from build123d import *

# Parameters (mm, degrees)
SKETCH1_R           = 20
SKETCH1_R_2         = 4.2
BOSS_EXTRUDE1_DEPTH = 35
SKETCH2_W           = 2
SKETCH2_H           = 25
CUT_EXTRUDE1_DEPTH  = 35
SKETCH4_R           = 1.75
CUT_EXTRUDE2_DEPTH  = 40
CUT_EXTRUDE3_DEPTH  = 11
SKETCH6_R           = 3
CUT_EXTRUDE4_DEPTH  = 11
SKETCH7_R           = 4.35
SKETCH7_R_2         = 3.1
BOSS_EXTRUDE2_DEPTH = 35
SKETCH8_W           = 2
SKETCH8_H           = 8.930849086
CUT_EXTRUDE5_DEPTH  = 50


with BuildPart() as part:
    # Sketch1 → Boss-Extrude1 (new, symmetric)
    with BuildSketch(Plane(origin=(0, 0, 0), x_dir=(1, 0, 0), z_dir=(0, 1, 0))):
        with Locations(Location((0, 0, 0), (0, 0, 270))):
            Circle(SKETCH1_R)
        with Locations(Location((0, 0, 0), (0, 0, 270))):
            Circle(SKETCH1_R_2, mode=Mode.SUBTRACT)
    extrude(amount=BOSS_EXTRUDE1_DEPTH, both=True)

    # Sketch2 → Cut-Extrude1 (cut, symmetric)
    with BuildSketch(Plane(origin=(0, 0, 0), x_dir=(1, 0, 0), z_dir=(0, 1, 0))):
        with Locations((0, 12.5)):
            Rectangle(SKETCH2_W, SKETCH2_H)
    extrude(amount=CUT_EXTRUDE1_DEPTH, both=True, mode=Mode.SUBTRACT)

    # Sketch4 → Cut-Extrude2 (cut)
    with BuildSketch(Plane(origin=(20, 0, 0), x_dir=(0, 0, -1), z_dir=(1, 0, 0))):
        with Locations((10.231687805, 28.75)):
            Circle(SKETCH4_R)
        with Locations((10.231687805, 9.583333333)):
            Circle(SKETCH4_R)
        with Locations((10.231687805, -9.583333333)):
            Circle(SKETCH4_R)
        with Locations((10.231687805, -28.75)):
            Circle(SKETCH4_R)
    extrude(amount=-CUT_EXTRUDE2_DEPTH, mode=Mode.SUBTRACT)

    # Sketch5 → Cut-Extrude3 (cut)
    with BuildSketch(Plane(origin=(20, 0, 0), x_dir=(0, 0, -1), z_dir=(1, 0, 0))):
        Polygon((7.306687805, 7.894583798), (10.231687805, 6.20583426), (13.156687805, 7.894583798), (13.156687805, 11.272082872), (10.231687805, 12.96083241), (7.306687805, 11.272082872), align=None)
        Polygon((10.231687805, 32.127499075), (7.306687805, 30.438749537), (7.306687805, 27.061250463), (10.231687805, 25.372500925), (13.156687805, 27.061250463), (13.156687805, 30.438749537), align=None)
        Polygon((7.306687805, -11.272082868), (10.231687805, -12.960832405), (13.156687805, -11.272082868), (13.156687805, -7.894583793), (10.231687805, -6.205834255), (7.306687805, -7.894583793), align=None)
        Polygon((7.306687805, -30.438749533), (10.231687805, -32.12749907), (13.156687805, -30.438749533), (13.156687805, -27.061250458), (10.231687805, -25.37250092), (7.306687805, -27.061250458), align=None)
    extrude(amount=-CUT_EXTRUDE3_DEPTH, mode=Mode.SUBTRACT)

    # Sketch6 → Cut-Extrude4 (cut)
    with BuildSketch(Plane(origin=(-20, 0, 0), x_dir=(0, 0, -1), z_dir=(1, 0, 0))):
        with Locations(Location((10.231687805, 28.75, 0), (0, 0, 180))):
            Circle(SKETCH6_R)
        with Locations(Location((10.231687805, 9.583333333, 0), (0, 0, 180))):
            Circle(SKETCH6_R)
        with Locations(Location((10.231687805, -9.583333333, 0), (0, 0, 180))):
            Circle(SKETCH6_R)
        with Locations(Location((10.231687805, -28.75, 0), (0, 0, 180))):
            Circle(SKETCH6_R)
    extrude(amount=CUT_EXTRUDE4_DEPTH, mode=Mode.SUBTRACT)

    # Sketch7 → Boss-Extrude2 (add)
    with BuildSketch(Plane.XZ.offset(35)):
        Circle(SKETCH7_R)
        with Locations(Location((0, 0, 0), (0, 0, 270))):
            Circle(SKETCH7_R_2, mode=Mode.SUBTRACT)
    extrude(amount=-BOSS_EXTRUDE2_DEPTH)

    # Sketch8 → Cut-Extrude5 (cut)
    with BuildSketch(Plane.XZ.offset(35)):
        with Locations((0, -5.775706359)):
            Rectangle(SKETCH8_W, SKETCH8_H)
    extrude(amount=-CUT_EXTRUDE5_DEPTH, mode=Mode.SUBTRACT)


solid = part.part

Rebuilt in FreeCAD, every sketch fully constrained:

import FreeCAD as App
import Part
import Sketcher
from FreeCAD import Vector
Q = App.Units.Quantity


def add_polygon(sketch, points):
    """Adds a closed chain of lines whose ends are joined by coincident constraints."""
    first, n = sketch.GeometryCount, len(points)
    for a, b in zip(points, points[1:] + points[:1]):
        sketch.addGeometry(Part.LineSegment(App.Vector(*a, 0), App.Vector(*b, 0)), False)
    for i in range(n):
        sketch.addConstraint(Sketcher.Constraint("Coincident", first + i, 2, first + (i + 1) % n, 1))

doc = App.newDocument("Part")
params = doc.addObject("Spreadsheet::Sheet", "Params")
for row, (alias, value) in enumerate([
    ("sketch1_diameter", "40 mm"),
    ("sketch1_diameter2", "8.4 mm"),
    ("pad1_length", "70 mm"),
    ("sketch2_width", "2 mm"),
    ("sketch2_height", "25 mm"),
    ("pocket1_length", "70 mm"),
    ("sketch3_diameter", "3.5 mm"),
    ("pocket2_length", "40 mm"),
    ("pocket3_length", "11 mm"),
    ("sketch5_diameter", "6 mm"),
    ("pocket4_length", "11 mm"),
    ("sketch6_diameter", "8.7 mm"),
    ("sketch6_diameter2", "6.2 mm"),
    ("pad2_length", "35 mm"),
    ("sketch7_width", "2 mm"),
    ("pocket5_length", "50 mm"),
], start=1):
    params.set(f"A{row}", alias)
    params.set(f"B{row}", "=" + value)
    params.setAlias(f"B{row}", alias)

body = doc.addObject("PartDesign::Body", "Body")

# Sketch on XZ plane
sketch1 = body.newObject("Sketcher::SketchObject", "Sketch")
sketch1.AttachmentSupport = (doc.getObject("XZ_Plane"), [""])
sketch1.MapMode = "FlatFace"
sketch1.addGeometry(Part.Circle(Vector(0, 0, 0), Vector(0, 0, 1), 20), False)
sketch1.addGeometry(Part.Circle(Vector(0, 0, 0), Vector(0, 0, 1), 4.2), False)
sketch1.addConstraint(Sketcher.Constraint("Coincident", 0, 3, -1, 1))
sketch1.addConstraint(Sketcher.Constraint("Coincident", 1, 3, -1, 1))
sketch1.addConstraint(Sketcher.Constraint("Diameter", 0, Q("40 mm")))
sketch1.addConstraint(Sketcher.Constraint("Diameter", 1, Q("8.4 mm")))
sketch1.setExpression("Constraints[2]", "Params.sketch1_diameter")
sketch1.setExpression("Constraints[3]", "Params.sketch1_diameter2")
pad1 = body.newObject("PartDesign::Pad", "Pad")
pad1.Profile = sketch1
pad1.setExpression("Length", "Params.pad1_length")
pad1.Midplane = True

# Sketch on XZ plane
sketch2 = body.newObject("Sketcher::SketchObject", "Sketch001")
sketch2.AttachmentSupport = (doc.getObject("XZ_Plane"), [""])
sketch2.MapMode = "FlatFace"
add_polygon(sketch2, [(-1, -25), (-1, 0), (1, 0), (1, -25)])  # lines 0-3
sketch2.addConstraint(Sketcher.Constraint("Vertical", 0))
sketch2.addConstraint(Sketcher.Constraint("Horizontal", 1))
sketch2.addConstraint(Sketcher.Constraint("Vertical", 2))
sketch2.addConstraint(Sketcher.Constraint("Horizontal", 3))
sketch2.addConstraint(Sketcher.Constraint("Symmetric", 0, 2, 1, 2, -1, 1))
sketch2.addConstraint(Sketcher.Constraint("DistanceX", 1, 1, 1, 2, Q("2 mm")))
sketch2.addConstraint(Sketcher.Constraint("DistanceY", 0, 1, 0, 2, Q("25 mm")))
sketch2.setExpression("Constraints[9]", "Params.sketch2_width")
sketch2.setExpression("Constraints[10]", "Params.sketch2_height")
pocket1 = body.newObject("PartDesign::Pocket", "Pocket")
pocket1.Profile = sketch2
pocket1.setExpression("Length", "Params.pocket1_length")
pocket1.Midplane = True

# Sketch on YZ plane
sketch3 = body.newObject("Sketcher::SketchObject", "Sketch002")
sketch3.AttachmentSupport = (doc.getObject("YZ_Plane"), [""])
sketch3.MapMode = "FlatFace"
sketch3.AttachmentOffset = App.Placement(Vector(0, 0, 20), App.Rotation())
sketch3.addGeometry(Part.Circle(Vector(28.8, -10.2, 0), Vector(0, 0, 1), 1.8), False)
sketch3.addGeometry(Part.Circle(Vector(9.6, -10.2, 0), Vector(0, 0, 1), 1.8), False)
sketch3.addGeometry(Part.Circle(Vector(-9.6, -10.2, 0), Vector(0, 0, 1), 1.8), False)
sketch3.addGeometry(Part.Circle(Vector(-28.8, -10.2, 0), Vector(0, 0, 1), 1.8), False)
sketch3.addConstraint(Sketcher.Constraint("Equal", 0, 1))
sketch3.addConstraint(Sketcher.Constraint("Equal", 1, 2))
sketch3.addConstraint(Sketcher.Constraint("Equal", 2, 3))
sketch3.addConstraint(Sketcher.Constraint("Symmetric", 1, 3, 2, 3, -2))
sketch3.addConstraint(Sketcher.Constraint("Symmetric", 0, 3, 3, 3, -2))
sketch3.addConstraint(Sketcher.Constraint("Horizontal", 0, 3, 1, 3))
sketch3.addConstraint(Sketcher.Constraint("Diameter", 0, Q("3.5 mm")))
sketch3.addConstraint(Sketcher.Constraint("DistanceX", 3, 3, 0, 3, Q("57.5 mm")))
sketch3.addConstraint(Sketcher.Constraint("DistanceY", 0, 3, -1, 1, Q("10.231688 mm")))
sketch3.addConstraint(Sketcher.Constraint("DistanceX", -1, 1, 1, 3, Q("9.583333 mm")))
sketch3.setExpression("Constraints[6]", "Params.sketch3_diameter")
pocket2 = body.newObject("PartDesign::Pocket", "Pocket001")
pocket2.Profile = sketch3
pocket2.setExpression("Length", "Params.pocket2_length")

# Sketch on YZ plane
sketch4 = body.newObject("Sketcher::SketchObject", "Sketch003")
sketch4.AttachmentSupport = (doc.getObject("YZ_Plane"), [""])
sketch4.MapMode = "FlatFace"
sketch4.AttachmentOffset = App.Placement(Vector(0, 0, 20), App.Rotation())
add_polygon(sketch4, [(7.9, -7.3), (6.2, -10.2), (7.9, -13.2), (11.3, -13.2), (13, -10.2), (11.3, -7.3)])  # lines 0-5
add_polygon(sketch4, [(32.1, -10.2), (30.4, -7.3), (27.1, -7.3), (25.4, -10.2), (27.1, -13.2), (30.4, -13.2)])  # lines 6-11
add_polygon(sketch4, [(-11.3, -7.3), (-13, -10.2), (-11.3, -13.2), (-7.9, -13.2), (-6.2, -10.2), (-7.9, -7.3)])  # lines 12-17
add_polygon(sketch4, [(-30.4, -7.3), (-32.1, -10.2), (-30.4, -13.2), (-27.1, -13.2), (-25.4, -10.2), (-27.1, -7.3)])  # lines 18-23
sketch4.addConstraint(Sketcher.Constraint("Horizontal", 2))
sketch4.addConstraint(Sketcher.Constraint("Horizontal", 5))
sketch4.addConstraint(Sketcher.Constraint("Horizontal", 7))
sketch4.addConstraint(Sketcher.Constraint("Horizontal", 10))
sketch4.addConstraint(Sketcher.Constraint("Horizontal", 14))
sketch4.addConstraint(Sketcher.Constraint("Horizontal", 17))
sketch4.addConstraint(Sketcher.Constraint("Horizontal", 20))
sketch4.addConstraint(Sketcher.Constraint("Horizontal", 23))
sketch4.addConstraint(Sketcher.Constraint("Symmetric", 3, 2, 12, 2, -2))
sketch4.addConstraint(Sketcher.Constraint("Symmetric", 2, 2, 13, 2, -2))
sketch4.addConstraint(Sketcher.Constraint("Symmetric", 0, 2, 15, 2, -2))
sketch4.addConstraint(Sketcher.Constraint("Symmetric", 5, 2, 16, 2, -2))
sketch4.addConstraint(Sketcher.Constraint("Symmetric", 11, 2, 18, 2, -2))
sketch4.addConstraint(Sketcher.Constraint("Symmetric", 10, 2, 19, 2, -2))
sketch4.addConstraint(Sketcher.Constraint("Symmetric", 8, 2, 21, 2, -2))
sketch4.addConstraint(Sketcher.Constraint("Symmetric", 7, 2, 22, 2, -2))
sketch4.addConstraint(Sketcher.Constraint("Parallel", 0, 3))
sketch4.addConstraint(Sketcher.Constraint("Parallel", 1, 4))
sketch4.addConstraint(Sketcher.Constraint("Parallel", 4, 6))
sketch4.addConstraint(Sketcher.Constraint("Parallel", 3, 8))
sketch4.addConstraint(Sketcher.Constraint("Parallel", 6, 9))
sketch4.addConstraint(Sketcher.Constraint("Parallel", 8, 11))
sketch4.addConstraint(Sketcher.Constraint("Parallel", 11, 12))
sketch4.addConstraint(Sketcher.Constraint("Parallel", 9, 13))
sketch4.addConstraint(Sketcher.Constraint("Parallel", 12, 15))
sketch4.addConstraint(Sketcher.Constraint("Parallel", 15, 18))
sketch4.addConstraint(Sketcher.Constraint("Parallel", 18, 21))
sketch4.addConstraint(Sketcher.Constraint("Horizontal", 0, 2, 3, 2))
sketch4.addConstraint(Sketcher.Constraint("Horizontal", 5, 2, 6, 2))
sketch4.addConstraint(Sketcher.Constraint("Horizontal", 3, 2, 8, 2))
sketch4.addConstraint(Sketcher.Constraint("Horizontal", 2, 2, 9, 2))
sketch4.addConstraint(Sketcher.Constraint("Horizontal", 8, 2, 11, 2))
sketch4.addConstraint(Sketcher.Constraint("Vertical", 2, 2, 4, 2))
sketch4.addConstraint(Sketcher.Constraint("Equal", 5, 7))
sketch4.addConstraint(Sketcher.Constraint("Angle", 0, Q("-120 deg")))
sketch4.addConstraint(Sketcher.Constraint("DistanceY", 2, 2, 4, 2, Q("5.85 mm")))
sketch4.addConstraint(Sketcher.Constraint("DistanceX", 2, 1, 2, 2, Q("3.377499 mm")))
sketch4.addConstraint(Sketcher.Constraint("DistanceX", -1, 1, 8, 2, Q("25.372501 mm")))
sketch4.addConstraint(Sketcher.Constraint("DistanceX", 3, 2, 7, 2, Q("14.100418 mm")))
sketch4.addConstraint(Sketcher.Constraint("DistanceY", 0, 2, -1, 1, Q("10.231688 mm")))
pocket3 = body.newObject("PartDesign::Pocket", "Pocket002")
pocket3.Profile = sketch4
pocket3.setExpression("Length", "Params.pocket3_length")

# Sketch on YZ plane
sketch5 = body.newObject("Sketcher::SketchObject", "Sketch004")
sketch5.AttachmentSupport = (doc.getObject("YZ_Plane"), [""])
sketch5.MapMode = "FlatFace"
sketch5.AttachmentOffset = App.Placement(Vector(0, 0, -20), App.Rotation())
sketch5.addGeometry(Part.Circle(Vector(28.8, -10.2, 0), Vector(0, 0, 1), 3), False)
sketch5.addGeometry(Part.Circle(Vector(9.6, -10.2, 0), Vector(0, 0, 1), 3), False)
sketch5.addGeometry(Part.Circle(Vector(-9.6, -10.2, 0), Vector(0, 0, 1), 3), False)
sketch5.addGeometry(Part.Circle(Vector(-28.8, -10.2, 0), Vector(0, 0, 1), 3), False)
sketch5.addConstraint(Sketcher.Constraint("Equal", 0, 1))
sketch5.addConstraint(Sketcher.Constraint("Equal", 1, 2))
sketch5.addConstraint(Sketcher.Constraint("Equal", 2, 3))
sketch5.addConstraint(Sketcher.Constraint("Symmetric", 1, 3, 2, 3, -2))
sketch5.addConstraint(Sketcher.Constraint("Symmetric", 0, 3, 3, 3, -2))
sketch5.addConstraint(Sketcher.Constraint("Horizontal", 0, 3, 1, 3))
sketch5.addConstraint(Sketcher.Constraint("Diameter", 0, Q("6 mm")))
sketch5.addConstraint(Sketcher.Constraint("DistanceX", 3, 3, 0, 3, Q("57.5 mm")))
sketch5.addConstraint(Sketcher.Constraint("DistanceY", 0, 3, -1, 1, Q("10.231688 mm")))
sketch5.addConstraint(Sketcher.Constraint("DistanceX", -1, 1, 1, 3, Q("9.583333 mm")))
sketch5.setExpression("Constraints[6]", "Params.sketch5_diameter")
pocket4 = body.newObject("PartDesign::Pocket", "Pocket003")
pocket4.Profile = sketch5
pocket4.setExpression("Length", "Params.pocket4_length")
pocket4.Reversed = True

# Sketch on XZ plane
sketch6 = body.newObject("Sketcher::SketchObject", "Sketch005")
sketch6.AttachmentSupport = (doc.getObject("XZ_Plane"), [""])
sketch6.MapMode = "FlatFace"
sketch6.AttachmentOffset = App.Placement(Vector(0, 0, 35), App.Rotation())
sketch6.addGeometry(Part.Circle(Vector(0, 0, 0), Vector(0, 0, 1), 4.3), False)
sketch6.addGeometry(Part.Circle(Vector(0, 0, 0), Vector(0, 0, 1), 3.1), False)
sketch6.addConstraint(Sketcher.Constraint("Coincident", 0, 3, -1, 1))
sketch6.addConstraint(Sketcher.Constraint("Coincident", 1, 3, -1, 1))
sketch6.addConstraint(Sketcher.Constraint("Diameter", 0, Q("8.7 mm")))
sketch6.addConstraint(Sketcher.Constraint("Diameter", 1, Q("6.2 mm")))
sketch6.setExpression("Constraints[2]", "Params.sketch6_diameter")
sketch6.setExpression("Constraints[3]", "Params.sketch6_diameter2")
pad2 = body.newObject("PartDesign::Pad", "Pad001")
pad2.Profile = sketch6
pad2.setExpression("Length", "Params.pad2_length")
pad2.Reversed = True

# Sketch on XZ plane
sketch7 = body.newObject("Sketcher::SketchObject", "Sketch006")
sketch7.AttachmentSupport = (doc.getObject("XZ_Plane"), [""])
sketch7.MapMode = "FlatFace"
sketch7.AttachmentOffset = App.Placement(Vector(0, 0, 35), App.Rotation())
add_polygon(sketch7, [(-1, -1.3), (-1, -10.2), (1, -10.2), (1, -1.3)])  # lines 0-3
sketch7.addConstraint(Sketcher.Constraint("Vertical", 0))
sketch7.addConstraint(Sketcher.Constraint("Horizontal", 1))
sketch7.addConstraint(Sketcher.Constraint("Vertical", 2))
sketch7.addConstraint(Sketcher.Constraint("Horizontal", 3))
sketch7.addConstraint(Sketcher.Constraint("DistanceX", 1, 1, 1, 2, Q("2 mm")))
sketch7.addConstraint(Sketcher.Constraint("DistanceX", 0, 2, -1, 1, Q("1 mm")))
sketch7.addConstraint(Sketcher.Constraint("DistanceY", 0, 2, 0, 1, Q("8.930849 mm")))
sketch7.addConstraint(Sketcher.Constraint("DistanceY", 0, 2, -1, 1, Q("10.241131 mm")))
sketch7.setExpression("Constraints[8]", "Params.sketch7_width")
pocket5 = body.newObject("PartDesign::Pocket", "Pocket004")
pocket5.Profile = sketch7
pocket5.setExpression("Length", "Params.pocket5_length")

doc.recompute()
